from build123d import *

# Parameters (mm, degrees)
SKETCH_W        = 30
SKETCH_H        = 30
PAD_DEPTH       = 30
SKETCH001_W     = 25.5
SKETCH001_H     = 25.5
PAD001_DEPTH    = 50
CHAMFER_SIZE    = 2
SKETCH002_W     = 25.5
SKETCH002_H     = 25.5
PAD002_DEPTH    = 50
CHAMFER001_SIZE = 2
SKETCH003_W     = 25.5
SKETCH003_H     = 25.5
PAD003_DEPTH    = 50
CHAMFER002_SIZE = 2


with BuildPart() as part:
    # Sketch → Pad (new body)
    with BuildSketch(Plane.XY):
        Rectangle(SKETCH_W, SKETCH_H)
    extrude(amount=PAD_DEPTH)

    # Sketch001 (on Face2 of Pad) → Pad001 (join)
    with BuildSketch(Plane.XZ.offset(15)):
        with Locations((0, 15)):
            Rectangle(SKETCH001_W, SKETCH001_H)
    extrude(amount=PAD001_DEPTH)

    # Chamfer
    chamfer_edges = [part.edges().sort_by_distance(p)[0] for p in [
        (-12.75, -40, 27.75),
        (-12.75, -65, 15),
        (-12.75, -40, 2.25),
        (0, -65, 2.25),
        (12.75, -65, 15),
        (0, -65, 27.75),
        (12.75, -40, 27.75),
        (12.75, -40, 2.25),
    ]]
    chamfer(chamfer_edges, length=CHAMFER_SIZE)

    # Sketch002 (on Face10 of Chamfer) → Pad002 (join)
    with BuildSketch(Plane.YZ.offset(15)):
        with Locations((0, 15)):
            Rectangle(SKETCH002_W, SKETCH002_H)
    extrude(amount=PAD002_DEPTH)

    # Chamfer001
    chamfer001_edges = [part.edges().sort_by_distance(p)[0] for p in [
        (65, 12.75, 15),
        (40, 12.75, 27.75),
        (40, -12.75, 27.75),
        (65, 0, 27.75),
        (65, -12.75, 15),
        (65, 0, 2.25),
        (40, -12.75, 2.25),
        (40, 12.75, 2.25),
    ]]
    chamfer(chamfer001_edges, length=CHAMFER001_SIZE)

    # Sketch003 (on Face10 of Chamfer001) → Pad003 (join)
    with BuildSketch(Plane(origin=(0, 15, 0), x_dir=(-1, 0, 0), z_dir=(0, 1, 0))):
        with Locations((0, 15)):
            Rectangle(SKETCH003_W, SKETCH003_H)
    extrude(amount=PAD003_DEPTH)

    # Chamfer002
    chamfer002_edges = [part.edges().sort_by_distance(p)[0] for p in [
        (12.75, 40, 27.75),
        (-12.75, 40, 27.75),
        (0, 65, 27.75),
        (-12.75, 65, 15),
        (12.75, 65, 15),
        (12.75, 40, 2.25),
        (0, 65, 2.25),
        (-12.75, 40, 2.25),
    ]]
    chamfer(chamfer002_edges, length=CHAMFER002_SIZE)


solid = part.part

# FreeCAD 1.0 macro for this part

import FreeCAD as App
import Part
import Sketcher


def edges_at(feature, points):
    """Names of the edges that pass closest to the given points."""
    edges = feature.Shape.Edges
    near = lambda p: min(range(len(edges)), key=lambda i: edges[i].distToShape(Part.Vertex(*p))[0])
    return sorted({f"Edge{near(p) + 1}" for p in points})

doc = App.newDocument("Part")
body = doc.addObject("PartDesign::Body", "Body")

sketch1 = doc.addObject("Sketcher::SketchObject", "Sketch")
body.addObject(sketch1)
sketch1.AttachmentSupport = (doc.XY_Plane, [""])
sketch1.MapMode = "FlatFace"
sketch1.addGeometry([
    Part.LineSegment(App.Vector(-15, 15, 0), App.Vector(-15, -15, 0)),
    Part.LineSegment(App.Vector(-15, -15, 0), App.Vector(15, -15, 0)),
    Part.LineSegment(App.Vector(15, -15, 0), App.Vector(15, 15, 0)),
    Part.LineSegment(App.Vector(15, 15, 0), App.Vector(-15, 15, 0)),
], False)
sketch1.addConstraint([
    Sketcher.Constraint("Coincident", 0, 2, 1, 1),
    Sketcher.Constraint("Coincident", 1, 2, 2, 1),
    Sketcher.Constraint("Coincident", 2, 2, 3, 1),
    Sketcher.Constraint("Coincident", 3, 2, 0, 1),
    Sketcher.Constraint("Vertical", 0),
    Sketcher.Constraint("Horizontal", 1),
    Sketcher.Constraint("Vertical", 2),
    Sketcher.Constraint("Horizontal", 3),
    Sketcher.Constraint("Symmetric", 0, 2, 2, 2, -1, 1),
    Sketcher.Constraint("Equal", 3, 0),
    Sketcher.Constraint("DistanceX", 1, 1, 1, 2, 30.0),
])
pad1 = doc.addObject("PartDesign::Pad", "Pad")
body.addObject(pad1)
pad1.Profile = sketch1
pad1.Length = 30

sketch2 = doc.addObject("Sketcher::SketchObject", "Sketch001")
body.addObject(sketch2)
sketch2.AttachmentSupport = (doc.XZ_Plane, [""])
sketch2.MapMode = "FlatFace"
sketch2.AttachmentOffset = App.Placement(App.Vector(0, 0, 15), App.Rotation())
sketch2.addGeometry([
    Part.LineSegment(App.Vector(-13, 28, 0), App.Vector(-13, 2, 0)),
    Part.LineSegment(App.Vector(-13, 2, 0), App.Vector(13, 2, 0)),
    Part.LineSegment(App.Vector(13, 2, 0), App.Vector(13, 28, 0)),
    Part.LineSegment(App.Vector(13, 28, 0), App.Vector(-13, 28, 0)),
], False)
sketch2.addConstraint([
    Sketcher.Constraint("Coincident", 0, 2, 1, 1),
    Sketcher.Constraint("Coincident", 1, 2, 2, 1),
    Sketcher.Constraint("Coincident", 2, 2, 3, 1),
    Sketcher.Constraint("Coincident", 3, 2, 0, 1),
    Sketcher.Constraint("Vertical", 0),
    Sketcher.Constraint("Horizontal", 1),
    Sketcher.Constraint("Vertical", 2),
    Sketcher.Constraint("Horizontal", 3),
    Sketcher.Constraint("Equal", 3, 0),
    Sketcher.Constraint("DistanceX", 1, 1, 1, 2, 25.5),
    Sketcher.Constraint("DistanceX", 0, 2, -1, 1, 12.75),
    Sketcher.Constraint("DistanceY", -1, 1, 0, 2, 2.25),
])
pad2 = doc.addObject("PartDesign::Pad", "Pad001")
body.addObject(pad2)
pad2.Profile = sketch2
pad2.Length = 50
doc.recompute()

chamfer = doc.addObject("PartDesign::Chamfer", "Chamfer")
body.addObject(chamfer)
chamfer.Base = (pad2, edges_at(pad2, [
    (-12.75, -40, 27.75),
    (-12.75, -65, 15),
    (-12.75, -40, 2.25),
    (0, -65, 2.25),
    (12.75, -65, 15),
    (0, -65, 27.75),
    (12.75, -40, 27.75),
    (12.75, -40, 2.25),
]))
chamfer.Size = 2

sketch3 = doc.addObject("Sketcher::SketchObject", "Sketch002")
body.addObject(sketch3)
sketch3.AttachmentSupport = (doc.YZ_Plane, [""])
sketch3.MapMode = "FlatFace"
sketch3.AttachmentOffset = App.Placement(App.Vector(0, 0, 15), App.Rotation())
sketch3.addGeometry([
    Part.LineSegment(App.Vector(-13, 28, 0), App.Vector(-13, 2, 0)),
    Part.LineSegment(App.Vector(-13, 2, 0), App.Vector(13, 2, 0)),
    Part.LineSegment(App.Vector(13, 2, 0), App.Vector(13, 28, 0)),
    Part.LineSegment(App.Vector(13, 28, 0), App.Vector(-13, 28, 0)),
], False)
sketch3.addConstraint([
    Sketcher.Constraint("Coincident", 0, 2, 1, 1),
    Sketcher.Constraint("Coincident", 1, 2, 2, 1),
    Sketcher.Constraint("Coincident", 2, 2, 3, 1),
    Sketcher.Constraint("Coincident", 3, 2, 0, 1),
    Sketcher.Constraint("Vertical", 0),
    Sketcher.Constraint("Horizontal", 1),
    Sketcher.Constraint("Vertical", 2),
    Sketcher.Constraint("Horizontal", 3),
    Sketcher.Constraint("Equal", 3, 0),
    Sketcher.Constraint("DistanceX", 1, 1, 1, 2, 25.5),
    Sketcher.Constraint("DistanceX", 0, 2, -1, 1, 12.75),
    Sketcher.Constraint("DistanceY", -1, 1, 0, 2, 2.25),
])
pad3 = doc.addObject("PartDesign::Pad", "Pad002")
body.addObject(pad3)
pad3.Profile = sketch3
pad3.Length = 50
doc.recompute()

chamfer2 = doc.addObject("PartDesign::Chamfer", "Chamfer001")
body.addObject(chamfer2)
chamfer2.Base = (pad3, edges_at(pad3, [
    (65, 12.75, 15),
    (40, 12.75, 27.75),
    (40, -12.75, 27.75),
    (65, 0, 27.75),
    (65, -12.75, 15),
    (65, 0, 2.25),
    (40, -12.75, 2.25),
    (40, 12.75, 2.25),
]))
chamfer2.Size = 2

sketch4 = doc.addObject("Sketcher::SketchObject", "Sketch003")
body.addObject(sketch4)
sketch4.AttachmentSupport = (doc.XZ_Plane, [""])
sketch4.MapMode = "FlatFace"
sketch4.AttachmentOffset = App.Placement(App.Vector(0, 0, -15), App.Rotation())
sketch4.addGeometry([
    Part.LineSegment(App.Vector(13, 28, 0), App.Vector(13, 2, 0)),
    Part.LineSegment(App.Vector(13, 2, 0), App.Vector(-13, 2, 0)),
    Part.LineSegment(App.Vector(-13, 2, 0), App.Vector(-13, 28, 0)),
    Part.LineSegment(App.Vector(-13, 28, 0), App.Vector(13, 28, 0)),
], False)
sketch4.addConstraint([
    Sketcher.Constraint("Coincident", 0, 2, 1, 1),
    Sketcher.Constraint("Coincident", 1, 2, 2, 1),
    Sketcher.Constraint("Coincident", 2, 2, 3, 1),
    Sketcher.Constraint("Coincident", 3, 2, 0, 1),
    Sketcher.Constraint("Vertical", 0),
    Sketcher.Constraint("Horizontal", 1),
    Sketcher.Constraint("Vertical", 2),
    Sketcher.Constraint("Horizontal", 3),
    Sketcher.Constraint("Equal", 3, 0),
    Sketcher.Constraint("DistanceX", 1, 2, 1, 1, 25.5),
    Sketcher.Constraint("DistanceX", -1, 1, 0, 2, 12.75),
    Sketcher.Constraint("DistanceY", -1, 1, 0, 2, 2.25),
])
pad4 = doc.addObject("PartDesign::Pad", "Pad003")
body.addObject(pad4)
pad4.Profile = sketch4
pad4.Length = 50
pad4.Reversed = True
doc.recompute()

chamfer3 = doc.addObject("PartDesign::Chamfer", "Chamfer002")
body.addObject(chamfer3)
chamfer3.Base = (pad4, edges_at(pad4, [
    (12.75, 40, 27.75),
    (-12.75, 40, 27.75),
    (0, 65, 27.75),
    (-12.75, 65, 15),
    (12.75, 65, 15),
    (12.75, 40, 2.25),
    (0, 65, 2.25),
    (-12.75, 40, 2.25),
]))
chamfer3.Size = 2

doc.recompute()
